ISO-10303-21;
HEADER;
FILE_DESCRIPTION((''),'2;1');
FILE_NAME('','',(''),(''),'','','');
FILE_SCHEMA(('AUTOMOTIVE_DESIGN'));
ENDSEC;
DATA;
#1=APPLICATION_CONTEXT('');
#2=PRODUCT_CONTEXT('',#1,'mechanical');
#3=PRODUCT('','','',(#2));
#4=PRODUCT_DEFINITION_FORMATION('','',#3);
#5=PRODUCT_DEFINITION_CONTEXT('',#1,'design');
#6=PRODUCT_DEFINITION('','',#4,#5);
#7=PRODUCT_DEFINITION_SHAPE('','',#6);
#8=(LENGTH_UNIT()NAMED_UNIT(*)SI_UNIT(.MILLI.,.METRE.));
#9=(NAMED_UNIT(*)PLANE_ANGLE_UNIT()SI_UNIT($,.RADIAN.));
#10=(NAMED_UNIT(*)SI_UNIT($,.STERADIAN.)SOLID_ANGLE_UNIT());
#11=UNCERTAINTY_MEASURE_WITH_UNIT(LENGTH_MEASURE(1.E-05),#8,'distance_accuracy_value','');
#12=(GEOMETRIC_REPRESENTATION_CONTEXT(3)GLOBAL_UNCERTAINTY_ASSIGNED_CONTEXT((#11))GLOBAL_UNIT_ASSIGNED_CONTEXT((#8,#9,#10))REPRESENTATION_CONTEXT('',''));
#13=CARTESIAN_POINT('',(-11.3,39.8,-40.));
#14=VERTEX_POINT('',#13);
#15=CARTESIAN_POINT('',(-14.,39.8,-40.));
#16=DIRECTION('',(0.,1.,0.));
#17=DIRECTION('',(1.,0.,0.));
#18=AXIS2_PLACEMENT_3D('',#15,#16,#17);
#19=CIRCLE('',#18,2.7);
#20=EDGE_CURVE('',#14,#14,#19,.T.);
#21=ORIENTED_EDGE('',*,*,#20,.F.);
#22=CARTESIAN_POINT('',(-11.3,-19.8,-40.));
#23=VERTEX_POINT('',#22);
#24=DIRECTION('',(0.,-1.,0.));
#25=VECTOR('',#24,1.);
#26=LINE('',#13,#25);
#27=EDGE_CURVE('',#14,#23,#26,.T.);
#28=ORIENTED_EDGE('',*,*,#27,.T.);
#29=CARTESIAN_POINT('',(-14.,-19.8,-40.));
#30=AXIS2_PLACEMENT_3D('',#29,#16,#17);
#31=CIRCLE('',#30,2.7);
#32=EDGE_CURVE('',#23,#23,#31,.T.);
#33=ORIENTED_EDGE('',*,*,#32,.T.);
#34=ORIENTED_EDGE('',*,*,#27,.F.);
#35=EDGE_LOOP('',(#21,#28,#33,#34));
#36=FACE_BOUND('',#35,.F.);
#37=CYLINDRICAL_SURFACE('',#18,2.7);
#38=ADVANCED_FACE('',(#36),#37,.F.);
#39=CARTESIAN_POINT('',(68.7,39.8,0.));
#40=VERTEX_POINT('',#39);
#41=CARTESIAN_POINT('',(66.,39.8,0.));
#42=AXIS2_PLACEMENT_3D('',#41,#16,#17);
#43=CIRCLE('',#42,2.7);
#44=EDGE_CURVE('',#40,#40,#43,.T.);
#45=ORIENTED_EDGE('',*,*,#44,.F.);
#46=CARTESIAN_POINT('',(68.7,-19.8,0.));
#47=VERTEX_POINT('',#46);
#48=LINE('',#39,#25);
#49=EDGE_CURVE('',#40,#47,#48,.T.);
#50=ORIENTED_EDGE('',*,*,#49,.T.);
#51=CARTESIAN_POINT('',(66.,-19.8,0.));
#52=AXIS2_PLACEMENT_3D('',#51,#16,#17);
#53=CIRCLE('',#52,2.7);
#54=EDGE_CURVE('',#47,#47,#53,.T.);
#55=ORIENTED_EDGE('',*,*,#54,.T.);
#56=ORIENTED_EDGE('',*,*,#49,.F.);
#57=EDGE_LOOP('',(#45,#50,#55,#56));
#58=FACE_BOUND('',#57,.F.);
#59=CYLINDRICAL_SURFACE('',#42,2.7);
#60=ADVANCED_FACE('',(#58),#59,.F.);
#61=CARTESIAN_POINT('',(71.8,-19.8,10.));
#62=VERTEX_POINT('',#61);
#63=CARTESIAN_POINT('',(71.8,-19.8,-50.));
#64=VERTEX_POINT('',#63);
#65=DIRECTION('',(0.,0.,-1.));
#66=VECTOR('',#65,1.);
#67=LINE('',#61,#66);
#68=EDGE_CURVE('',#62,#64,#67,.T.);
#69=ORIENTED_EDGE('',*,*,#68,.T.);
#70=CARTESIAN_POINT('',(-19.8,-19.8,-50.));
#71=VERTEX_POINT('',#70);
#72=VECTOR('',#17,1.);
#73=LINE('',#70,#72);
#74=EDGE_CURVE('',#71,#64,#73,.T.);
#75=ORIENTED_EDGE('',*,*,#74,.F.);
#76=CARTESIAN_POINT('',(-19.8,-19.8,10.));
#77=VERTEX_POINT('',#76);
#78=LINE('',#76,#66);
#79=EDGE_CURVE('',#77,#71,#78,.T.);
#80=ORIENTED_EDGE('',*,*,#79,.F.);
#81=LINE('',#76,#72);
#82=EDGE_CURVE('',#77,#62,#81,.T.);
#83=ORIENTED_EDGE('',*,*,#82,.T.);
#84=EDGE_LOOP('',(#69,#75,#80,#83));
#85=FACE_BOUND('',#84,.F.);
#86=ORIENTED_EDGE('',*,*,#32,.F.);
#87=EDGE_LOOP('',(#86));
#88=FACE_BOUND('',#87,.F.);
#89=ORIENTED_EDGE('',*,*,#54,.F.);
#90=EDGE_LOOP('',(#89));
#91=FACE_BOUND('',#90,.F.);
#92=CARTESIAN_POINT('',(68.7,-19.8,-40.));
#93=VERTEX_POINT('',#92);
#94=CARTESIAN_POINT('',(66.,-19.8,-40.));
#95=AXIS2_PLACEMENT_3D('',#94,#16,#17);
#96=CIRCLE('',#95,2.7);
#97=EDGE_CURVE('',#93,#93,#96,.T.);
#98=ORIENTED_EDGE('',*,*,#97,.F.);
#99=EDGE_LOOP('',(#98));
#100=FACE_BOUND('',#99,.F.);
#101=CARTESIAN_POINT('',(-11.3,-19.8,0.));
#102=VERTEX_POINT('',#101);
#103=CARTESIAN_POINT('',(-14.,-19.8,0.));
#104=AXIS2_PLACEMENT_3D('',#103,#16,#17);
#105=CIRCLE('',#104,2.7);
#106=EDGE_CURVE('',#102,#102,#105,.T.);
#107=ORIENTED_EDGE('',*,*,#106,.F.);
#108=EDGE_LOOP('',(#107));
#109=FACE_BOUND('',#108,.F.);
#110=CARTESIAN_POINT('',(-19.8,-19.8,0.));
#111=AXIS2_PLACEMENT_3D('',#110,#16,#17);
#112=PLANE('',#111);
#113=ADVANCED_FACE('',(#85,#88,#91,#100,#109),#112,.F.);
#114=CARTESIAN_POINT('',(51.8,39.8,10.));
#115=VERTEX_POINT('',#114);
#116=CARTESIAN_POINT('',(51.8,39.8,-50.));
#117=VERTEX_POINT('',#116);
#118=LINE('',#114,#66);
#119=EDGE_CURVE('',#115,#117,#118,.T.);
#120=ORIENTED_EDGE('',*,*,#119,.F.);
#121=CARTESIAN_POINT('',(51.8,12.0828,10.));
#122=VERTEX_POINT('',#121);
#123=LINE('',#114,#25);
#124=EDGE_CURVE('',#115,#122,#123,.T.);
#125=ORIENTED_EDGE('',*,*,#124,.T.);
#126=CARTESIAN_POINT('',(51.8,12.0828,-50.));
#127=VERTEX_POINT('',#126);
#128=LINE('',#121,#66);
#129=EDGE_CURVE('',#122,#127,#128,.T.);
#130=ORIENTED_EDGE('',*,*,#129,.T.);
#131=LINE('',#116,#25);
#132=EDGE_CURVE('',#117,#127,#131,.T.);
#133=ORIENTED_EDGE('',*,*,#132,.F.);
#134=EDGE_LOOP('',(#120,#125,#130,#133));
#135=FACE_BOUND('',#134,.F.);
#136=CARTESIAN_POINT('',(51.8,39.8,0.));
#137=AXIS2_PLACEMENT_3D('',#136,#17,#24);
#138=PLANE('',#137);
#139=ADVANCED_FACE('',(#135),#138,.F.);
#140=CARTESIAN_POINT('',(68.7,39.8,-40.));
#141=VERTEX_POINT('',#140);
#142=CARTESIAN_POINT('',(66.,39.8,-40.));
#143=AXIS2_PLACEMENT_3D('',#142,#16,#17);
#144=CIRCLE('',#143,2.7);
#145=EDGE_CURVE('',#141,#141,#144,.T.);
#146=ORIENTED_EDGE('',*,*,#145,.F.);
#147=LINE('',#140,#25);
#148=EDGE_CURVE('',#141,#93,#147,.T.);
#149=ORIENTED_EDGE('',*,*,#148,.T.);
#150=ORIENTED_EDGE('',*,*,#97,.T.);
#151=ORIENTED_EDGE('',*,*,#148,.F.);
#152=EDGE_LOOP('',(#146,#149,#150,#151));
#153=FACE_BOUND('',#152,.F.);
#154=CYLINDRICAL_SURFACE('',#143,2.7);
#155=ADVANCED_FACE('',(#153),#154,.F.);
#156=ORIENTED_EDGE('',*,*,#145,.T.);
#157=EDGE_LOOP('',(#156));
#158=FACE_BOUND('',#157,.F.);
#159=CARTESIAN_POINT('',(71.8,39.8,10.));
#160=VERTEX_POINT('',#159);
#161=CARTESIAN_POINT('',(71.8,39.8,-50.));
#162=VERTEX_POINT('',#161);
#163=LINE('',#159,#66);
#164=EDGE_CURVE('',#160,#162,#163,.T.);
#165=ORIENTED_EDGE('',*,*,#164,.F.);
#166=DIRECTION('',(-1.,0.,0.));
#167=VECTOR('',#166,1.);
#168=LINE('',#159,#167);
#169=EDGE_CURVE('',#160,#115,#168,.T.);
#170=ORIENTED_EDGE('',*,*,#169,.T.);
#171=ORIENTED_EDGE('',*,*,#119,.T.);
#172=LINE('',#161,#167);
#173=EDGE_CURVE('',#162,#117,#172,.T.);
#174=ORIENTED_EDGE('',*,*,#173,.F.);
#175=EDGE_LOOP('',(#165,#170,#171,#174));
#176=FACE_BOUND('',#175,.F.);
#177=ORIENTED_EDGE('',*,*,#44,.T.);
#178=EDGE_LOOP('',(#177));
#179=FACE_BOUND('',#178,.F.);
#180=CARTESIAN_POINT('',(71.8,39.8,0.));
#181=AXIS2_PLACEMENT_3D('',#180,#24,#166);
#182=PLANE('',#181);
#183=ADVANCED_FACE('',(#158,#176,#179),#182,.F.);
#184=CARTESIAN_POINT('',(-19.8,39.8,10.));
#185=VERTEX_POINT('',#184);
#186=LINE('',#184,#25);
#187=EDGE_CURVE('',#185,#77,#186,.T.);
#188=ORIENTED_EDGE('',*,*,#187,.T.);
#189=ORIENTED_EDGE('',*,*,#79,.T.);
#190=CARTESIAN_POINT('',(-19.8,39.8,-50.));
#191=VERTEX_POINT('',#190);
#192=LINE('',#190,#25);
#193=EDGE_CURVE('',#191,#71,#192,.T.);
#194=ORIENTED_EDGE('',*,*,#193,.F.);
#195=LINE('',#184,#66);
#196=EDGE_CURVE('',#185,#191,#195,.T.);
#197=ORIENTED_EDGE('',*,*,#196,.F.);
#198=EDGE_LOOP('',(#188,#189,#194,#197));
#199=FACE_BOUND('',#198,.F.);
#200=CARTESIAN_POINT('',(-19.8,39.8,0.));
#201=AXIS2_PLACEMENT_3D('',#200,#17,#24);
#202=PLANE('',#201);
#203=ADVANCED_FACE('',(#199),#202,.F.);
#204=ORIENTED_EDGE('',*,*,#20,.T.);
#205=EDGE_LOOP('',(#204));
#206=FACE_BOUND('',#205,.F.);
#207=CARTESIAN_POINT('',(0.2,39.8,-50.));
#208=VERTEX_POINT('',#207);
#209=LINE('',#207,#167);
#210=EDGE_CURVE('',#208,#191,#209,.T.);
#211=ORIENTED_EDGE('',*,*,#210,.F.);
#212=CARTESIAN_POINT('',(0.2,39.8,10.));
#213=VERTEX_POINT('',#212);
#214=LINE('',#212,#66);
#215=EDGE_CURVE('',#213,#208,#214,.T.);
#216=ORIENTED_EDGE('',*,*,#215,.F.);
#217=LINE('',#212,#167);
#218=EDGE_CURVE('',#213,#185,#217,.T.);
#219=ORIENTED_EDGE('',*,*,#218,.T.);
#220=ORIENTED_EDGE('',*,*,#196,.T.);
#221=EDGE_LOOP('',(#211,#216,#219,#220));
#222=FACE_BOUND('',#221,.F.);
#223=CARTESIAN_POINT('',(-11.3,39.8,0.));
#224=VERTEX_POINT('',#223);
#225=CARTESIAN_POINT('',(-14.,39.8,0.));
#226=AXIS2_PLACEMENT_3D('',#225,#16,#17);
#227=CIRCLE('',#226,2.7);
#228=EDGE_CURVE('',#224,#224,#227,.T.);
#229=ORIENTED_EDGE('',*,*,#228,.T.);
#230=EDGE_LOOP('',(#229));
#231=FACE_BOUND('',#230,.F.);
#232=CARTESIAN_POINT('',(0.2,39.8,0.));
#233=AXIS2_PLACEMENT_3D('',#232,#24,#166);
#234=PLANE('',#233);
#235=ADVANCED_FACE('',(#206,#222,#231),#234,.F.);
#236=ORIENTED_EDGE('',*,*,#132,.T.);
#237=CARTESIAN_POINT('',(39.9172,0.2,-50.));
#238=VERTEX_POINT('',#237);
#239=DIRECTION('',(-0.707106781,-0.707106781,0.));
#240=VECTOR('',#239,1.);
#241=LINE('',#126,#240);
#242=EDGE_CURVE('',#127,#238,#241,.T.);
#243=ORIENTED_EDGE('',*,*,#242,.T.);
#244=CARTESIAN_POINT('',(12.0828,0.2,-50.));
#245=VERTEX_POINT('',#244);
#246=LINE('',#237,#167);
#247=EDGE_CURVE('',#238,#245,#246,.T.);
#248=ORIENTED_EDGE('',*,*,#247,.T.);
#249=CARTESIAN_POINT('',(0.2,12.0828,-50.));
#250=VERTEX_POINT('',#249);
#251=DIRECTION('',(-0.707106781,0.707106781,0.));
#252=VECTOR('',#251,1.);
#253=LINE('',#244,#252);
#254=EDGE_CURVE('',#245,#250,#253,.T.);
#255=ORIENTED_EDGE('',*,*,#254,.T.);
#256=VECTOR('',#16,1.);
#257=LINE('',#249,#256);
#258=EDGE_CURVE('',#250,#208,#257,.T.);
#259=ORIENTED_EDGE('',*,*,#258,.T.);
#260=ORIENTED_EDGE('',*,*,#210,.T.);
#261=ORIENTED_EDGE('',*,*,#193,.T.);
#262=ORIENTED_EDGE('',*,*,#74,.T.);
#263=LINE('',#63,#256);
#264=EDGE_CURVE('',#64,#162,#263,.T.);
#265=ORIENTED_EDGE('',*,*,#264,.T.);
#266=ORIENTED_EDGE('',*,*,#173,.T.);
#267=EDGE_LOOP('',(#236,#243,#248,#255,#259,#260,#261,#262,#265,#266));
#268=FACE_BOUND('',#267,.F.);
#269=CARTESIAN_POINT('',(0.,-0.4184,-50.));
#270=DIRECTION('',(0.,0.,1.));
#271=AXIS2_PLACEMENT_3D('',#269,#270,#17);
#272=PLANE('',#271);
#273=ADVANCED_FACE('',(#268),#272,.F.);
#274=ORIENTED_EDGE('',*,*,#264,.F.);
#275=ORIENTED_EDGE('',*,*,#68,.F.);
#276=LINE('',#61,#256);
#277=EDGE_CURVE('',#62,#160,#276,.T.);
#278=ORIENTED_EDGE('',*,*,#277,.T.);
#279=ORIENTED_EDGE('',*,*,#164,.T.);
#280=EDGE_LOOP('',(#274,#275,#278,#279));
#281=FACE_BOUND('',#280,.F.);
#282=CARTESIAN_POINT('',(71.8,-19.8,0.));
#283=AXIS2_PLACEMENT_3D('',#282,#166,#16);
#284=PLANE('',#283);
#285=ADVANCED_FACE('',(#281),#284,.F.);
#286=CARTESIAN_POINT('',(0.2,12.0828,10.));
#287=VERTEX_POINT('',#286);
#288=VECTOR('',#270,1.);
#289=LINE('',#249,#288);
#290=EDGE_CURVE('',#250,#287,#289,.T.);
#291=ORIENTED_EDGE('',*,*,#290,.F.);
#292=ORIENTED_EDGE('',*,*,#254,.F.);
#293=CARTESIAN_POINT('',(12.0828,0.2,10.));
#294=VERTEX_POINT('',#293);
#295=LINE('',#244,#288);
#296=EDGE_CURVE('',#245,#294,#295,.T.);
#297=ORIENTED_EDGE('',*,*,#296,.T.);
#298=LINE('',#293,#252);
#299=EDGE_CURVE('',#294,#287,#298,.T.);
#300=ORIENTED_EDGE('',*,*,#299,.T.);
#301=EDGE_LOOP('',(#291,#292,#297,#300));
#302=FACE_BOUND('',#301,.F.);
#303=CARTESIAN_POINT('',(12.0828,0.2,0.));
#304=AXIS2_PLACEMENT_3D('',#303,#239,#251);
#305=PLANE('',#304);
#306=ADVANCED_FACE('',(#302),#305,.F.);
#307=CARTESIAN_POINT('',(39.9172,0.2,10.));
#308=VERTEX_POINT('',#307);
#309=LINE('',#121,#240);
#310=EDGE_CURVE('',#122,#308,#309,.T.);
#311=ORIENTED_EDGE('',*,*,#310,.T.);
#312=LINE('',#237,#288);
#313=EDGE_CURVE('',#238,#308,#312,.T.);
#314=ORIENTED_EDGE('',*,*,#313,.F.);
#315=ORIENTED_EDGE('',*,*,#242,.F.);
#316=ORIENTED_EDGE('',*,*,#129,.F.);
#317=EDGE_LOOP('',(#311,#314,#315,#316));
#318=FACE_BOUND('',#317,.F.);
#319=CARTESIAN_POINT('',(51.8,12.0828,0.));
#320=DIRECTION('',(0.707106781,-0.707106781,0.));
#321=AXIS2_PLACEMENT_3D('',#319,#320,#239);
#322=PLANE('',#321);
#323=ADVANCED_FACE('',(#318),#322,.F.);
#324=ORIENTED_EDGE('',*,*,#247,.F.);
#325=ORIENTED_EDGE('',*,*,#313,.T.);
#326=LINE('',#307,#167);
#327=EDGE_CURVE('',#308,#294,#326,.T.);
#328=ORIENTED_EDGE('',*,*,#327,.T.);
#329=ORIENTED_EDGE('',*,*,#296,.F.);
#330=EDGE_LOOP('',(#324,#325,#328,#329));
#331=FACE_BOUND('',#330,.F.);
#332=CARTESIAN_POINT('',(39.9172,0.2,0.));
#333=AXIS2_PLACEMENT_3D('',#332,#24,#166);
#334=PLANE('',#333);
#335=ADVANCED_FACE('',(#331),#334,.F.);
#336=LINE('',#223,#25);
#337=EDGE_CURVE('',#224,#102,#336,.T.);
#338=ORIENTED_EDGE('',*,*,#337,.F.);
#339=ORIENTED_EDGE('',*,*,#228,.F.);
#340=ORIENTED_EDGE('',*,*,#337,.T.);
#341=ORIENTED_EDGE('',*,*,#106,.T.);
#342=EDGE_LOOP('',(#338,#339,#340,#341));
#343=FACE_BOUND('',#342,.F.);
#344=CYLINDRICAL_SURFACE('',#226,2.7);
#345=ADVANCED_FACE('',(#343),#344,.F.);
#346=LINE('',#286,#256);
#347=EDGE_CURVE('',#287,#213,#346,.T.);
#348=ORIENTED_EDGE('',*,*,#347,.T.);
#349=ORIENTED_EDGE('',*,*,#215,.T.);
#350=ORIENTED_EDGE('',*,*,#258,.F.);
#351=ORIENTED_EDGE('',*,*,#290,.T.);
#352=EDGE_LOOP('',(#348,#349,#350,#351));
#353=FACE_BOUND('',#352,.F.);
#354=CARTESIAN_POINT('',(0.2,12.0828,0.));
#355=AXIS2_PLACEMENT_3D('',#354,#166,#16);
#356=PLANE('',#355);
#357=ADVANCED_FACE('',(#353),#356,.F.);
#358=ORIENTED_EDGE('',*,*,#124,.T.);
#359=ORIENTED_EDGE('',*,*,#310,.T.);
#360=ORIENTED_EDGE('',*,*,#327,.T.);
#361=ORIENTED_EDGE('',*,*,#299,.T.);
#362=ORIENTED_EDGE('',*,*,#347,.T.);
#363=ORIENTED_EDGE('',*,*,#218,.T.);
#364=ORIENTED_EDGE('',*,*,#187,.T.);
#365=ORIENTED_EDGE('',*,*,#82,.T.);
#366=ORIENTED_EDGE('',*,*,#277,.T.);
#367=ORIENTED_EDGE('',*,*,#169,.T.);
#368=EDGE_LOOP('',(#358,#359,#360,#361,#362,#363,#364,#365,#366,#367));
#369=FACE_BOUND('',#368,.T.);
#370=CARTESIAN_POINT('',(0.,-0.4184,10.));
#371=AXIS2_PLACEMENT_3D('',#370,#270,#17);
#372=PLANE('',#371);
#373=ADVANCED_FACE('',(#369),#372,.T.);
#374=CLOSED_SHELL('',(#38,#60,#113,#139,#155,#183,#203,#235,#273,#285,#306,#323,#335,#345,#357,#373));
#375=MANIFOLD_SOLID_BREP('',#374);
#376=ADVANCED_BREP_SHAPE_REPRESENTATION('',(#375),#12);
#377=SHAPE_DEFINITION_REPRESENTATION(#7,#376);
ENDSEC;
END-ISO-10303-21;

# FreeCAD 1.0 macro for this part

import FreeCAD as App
import Part
import Sketcher

V = App.Vector
Q = App.Units.Quantity

doc = App.newDocument("Part")
body = doc.addObject("PartDesign::Body", "Body")

# Sketch on XY plane
sketch1 = body.newObject("Sketcher::SketchObject", "Sketch")
sketch1.AttachmentSupport = (doc.getObject("XY_Plane"), [""])
sketch1.MapMode = "FlatFace"
sketch1.addGeometry([
    Part.LineSegment(V(52, 40, 0), V(52, 12, 0)),  # 0
    Part.LineSegment(V(52, 12, 0), V(40, 0, 0)),  # 1
    Part.LineSegment(V(40, 0, 0), V(12, 0, 0)),  # 2
    Part.LineSegment(V(12, 0, 0), V(0, 12, 0)),  # 3
    Part.LineSegment(V(0, 12, 0), V(0, 40, 0)),  # 4
    Part.LineSegment(V(0, 40, 0), V(-20, 40, 0)),  # 5
    Part.LineSegment(V(-20, 40, 0), V(-20, -20, 0)),  # 6
    Part.LineSegment(V(-20, -20, 0), V(72, -20, 0)),  # 7
    Part.LineSegment(V(72, -20, 0), V(72, 40, 0)),  # 8
    Part.LineSegment(V(72, 40, 0), V(52, 40, 0)),  # 9
], False)
sketch1.addConstraint([
    Sketcher.Constraint("Coincident", 0, 2, 1, 1),
    Sketcher.Constraint("Coincident", 1, 2, 2, 1),
    Sketcher.Constraint("Coincident", 2, 2, 3, 1),
    Sketcher.Constraint("Coincident", 3, 2, 4, 1),
    Sketcher.Constraint("Coincident", 4, 2, 5, 1),
    Sketcher.Constraint("Coincident", 5, 2, 6, 1),
    Sketcher.Constraint("Coincident", 6, 2, 7, 1),
    Sketcher.Constraint("Coincident", 7, 2, 8, 1),
    Sketcher.Constraint("Coincident", 8, 2, 9, 1),
    Sketcher.Constraint("Coincident", 9, 2, 0, 1),
    Sketcher.Constraint("Vertical", 0),
    Sketcher.Constraint("Horizontal", 2),
    Sketcher.Constraint("Vertical", 4),
    Sketcher.Constraint("Horizontal", 5),
    Sketcher.Constraint("Vertical", 6),
    Sketcher.Constraint("Horizontal", 7),
    Sketcher.Constraint("Vertical", 8),
    Sketcher.Constraint("Horizontal", 9),
    Sketcher.Constraint("Perpendicular", 1, 3),
    Sketcher.Constraint("Horizontal", 0, 2, 3, 2),
    Sketcher.Constraint("Horizontal", 5, 2, 8, 2),
    Sketcher.Constraint("Equal", 5, 9),
    Sketcher.Constraint("Equal", 1, 3),
    Sketcher.Constraint("DistanceX", 5, 2, 5, 1, Q("20 mm")),
    Sketcher.Constraint("DistanceY", 6, 2, 2, 2, Q("20 mm")),
    Sketcher.Constraint("DistanceX", 7, 1, 7, 2, Q("91.6 mm")),
    Sketcher.Constraint("DistanceY", 6, 2, 6, 1, Q("59.6 mm")),
    Sketcher.Constraint("DistanceX", -1, 1, 0, 2, Q("51.8 mm")),
    Sketcher.Constraint("DistanceY", -1, 1, 1, 2, Q("0.2 mm")),
    Sketcher.Constraint("DistanceX", 2, 2, 2, 1, Q("27.8344 mm")),
])
pad1 = body.newObject("PartDesign::Pad", "Pad")
pad1.Profile = sketch1
pad1.Length = 40
pad1.Reversed = True

# Sketch on XY plane
sketch2 = body.newObject("Sketcher::SketchObject", "Sketch001")
sketch2.AttachmentSupport = (doc.getObject("XY_Plane"), [""])
sketch2.MapMode = "FlatFace"
sketch2.addGeometry([
    Part.LineSegment(V(52, 12, 0), V(40, 0, 0)),  # 0
    Part.LineSegment(V(40, 0, 0), V(12, 0, 0)),  # 1
    Part.LineSegment(V(12, 0, 0), V(0, 12, 0)),  # 2
    Part.LineSegment(V(0, 12, 0), V(0, 40, 0)),  # 3
    Part.LineSegment(V(0, 40, 0), V(-20, 40, 0)),  # 4
    Part.LineSegment(V(-20, 40, 0), V(-20, -20, 0)),  # 5
    Part.LineSegment(V(-20, -20, 0), V(72, -20, 0)),  # 6
    Part.LineSegment(V(72, -20, 0), V(72, 40, 0)),  # 7
    Part.LineSegment(V(72, 40, 0), V(52, 40, 0)),  # 8
    Part.LineSegment(V(52, 40, 0), V(52, 12, 0)),  # 9
], False)
sketch2.addConstraint([
    Sketcher.Constraint("Coincident", 0, 2, 1, 1),
    Sketcher.Constraint("Coincident", 1, 2, 2, 1),
    Sketcher.Constraint("Coincident", 2, 2, 3, 1),
    Sketcher.Constraint("Coincident", 3, 2, 4, 1),
    Sketcher.Constraint("Coincident", 4, 2, 5, 1),
    Sketcher.Constraint("Coincident", 5, 2, 6, 1),
    Sketcher.Constraint("Coincident", 6, 2, 7, 1),
    Sketcher.Constraint("Coincident", 7, 2, 8, 1),
    Sketcher.Constraint("Coincident", 8, 2, 9, 1),
    Sketcher.Constraint("Coincident", 9, 2, 0, 1),
    Sketcher.Constraint("Horizontal", 1),
    Sketcher.Constraint("Vertical", 3),
    Sketcher.Constraint("Horizontal", 4),
    Sketcher.Constraint("Vertical", 5),
    Sketcher.Constraint("Horizontal", 6),
    Sketcher.Constraint("Vertical", 7),
    Sketcher.Constraint("Horizontal", 8),
    Sketcher.Constraint("Vertical", 9),
    Sketcher.Constraint("Perpendicular", 0, 2),
    Sketcher.Constraint("Horizontal", 4, 2, 7, 2),
    Sketcher.Constraint("Horizontal", 2, 2, 9, 2),
    Sketcher.Constraint("Equal", 4, 8),
    Sketcher.Constraint("Equal", 0, 2),
    Sketcher.Constraint("DistanceX", 4, 2, 4, 1, Q("20 mm")),
    Sketcher.Constraint("DistanceX", 6, 1, 6, 2, Q("91.6 mm")),
    Sketcher.Constraint("DistanceY", 5, 2, 5, 1, Q("59.6 mm")),
    Sketcher.Constraint("DistanceY", 5, 2, 1, 2, Q("20 mm")),
    Sketcher.Constraint("DistanceY", -1, 1, 0, 2, Q("0.2 mm")),
    Sketcher.Constraint("DistanceX", -1, 1, 2, 2, Q("0.2 mm")),
    Sketcher.Constraint("DistanceX", 1, 2, 1, 1, Q("27.8344 mm")),
])
pad2 = body.newObject("PartDesign::Pad", "Pad001")
pad2.Profile = sketch2
pad2.Type = "TwoLengths"
pad2.Length = 10
pad2.Length2 = 50

# Sketch on XZ plane
sketch3 = body.newObject("Sketcher::SketchObject", "Sketch002")
sketch3.AttachmentSupport = (doc.getObject("XZ_Plane"), [""])
sketch3.MapMode = "FlatFace"
sketch3.AttachmentOffset = App.Placement(V(0, 0, -39.8), App.Rotation())
sketch3.addGeometry([
    Part.Circle(V(-14, -40, 0), V(0, 0, 1), 2.7),
    Part.Circle(V(-14, 0, 0), V(0, 0, 1), 2.7),
    Part.Circle(V(66, -40, 0), V(0, 0, 1), 2.7),
    Part.Circle(V(66, 0, 0), V(0, 0, 1), 2.7),
], False)
sketch3.addConstraint([
    Sketcher.Constraint("Equal", 0, 1),
    Sketcher.Constraint("Equal", 1, 2),
    Sketcher.Constraint("Equal", 2, 3),
    Sketcher.Constraint("PointOnObject", 1, 3, -1),
    Sketcher.Constraint("PointOnObject", 3, 3, -1),
    Sketcher.Constraint("Horizontal", 0, 3, 2, 3),
    Sketcher.Constraint("Vertical", 0, 3, 1, 3),
    Sketcher.Constraint("Vertical", 2, 3, 3, 3),
    Sketcher.Constraint("Diameter", 0, Q("5.4 mm")),
    Sketcher.Constraint("DistanceY", 0, 3, -1, 1, Q("40 mm")),
    Sketcher.Constraint("DistanceX", 0, 3, 2, 3, Q("80 mm")),
    Sketcher.Constraint("DistanceX", 0, 3, -1, 1, Q("14 mm")),
])
pocket1 = body.newObject("PartDesign::Pocket", "Pocket")
pocket1.Profile = sketch3
pocket1.Type = "ThroughAll"
pocket1.Reversed = True

doc.recompute()
